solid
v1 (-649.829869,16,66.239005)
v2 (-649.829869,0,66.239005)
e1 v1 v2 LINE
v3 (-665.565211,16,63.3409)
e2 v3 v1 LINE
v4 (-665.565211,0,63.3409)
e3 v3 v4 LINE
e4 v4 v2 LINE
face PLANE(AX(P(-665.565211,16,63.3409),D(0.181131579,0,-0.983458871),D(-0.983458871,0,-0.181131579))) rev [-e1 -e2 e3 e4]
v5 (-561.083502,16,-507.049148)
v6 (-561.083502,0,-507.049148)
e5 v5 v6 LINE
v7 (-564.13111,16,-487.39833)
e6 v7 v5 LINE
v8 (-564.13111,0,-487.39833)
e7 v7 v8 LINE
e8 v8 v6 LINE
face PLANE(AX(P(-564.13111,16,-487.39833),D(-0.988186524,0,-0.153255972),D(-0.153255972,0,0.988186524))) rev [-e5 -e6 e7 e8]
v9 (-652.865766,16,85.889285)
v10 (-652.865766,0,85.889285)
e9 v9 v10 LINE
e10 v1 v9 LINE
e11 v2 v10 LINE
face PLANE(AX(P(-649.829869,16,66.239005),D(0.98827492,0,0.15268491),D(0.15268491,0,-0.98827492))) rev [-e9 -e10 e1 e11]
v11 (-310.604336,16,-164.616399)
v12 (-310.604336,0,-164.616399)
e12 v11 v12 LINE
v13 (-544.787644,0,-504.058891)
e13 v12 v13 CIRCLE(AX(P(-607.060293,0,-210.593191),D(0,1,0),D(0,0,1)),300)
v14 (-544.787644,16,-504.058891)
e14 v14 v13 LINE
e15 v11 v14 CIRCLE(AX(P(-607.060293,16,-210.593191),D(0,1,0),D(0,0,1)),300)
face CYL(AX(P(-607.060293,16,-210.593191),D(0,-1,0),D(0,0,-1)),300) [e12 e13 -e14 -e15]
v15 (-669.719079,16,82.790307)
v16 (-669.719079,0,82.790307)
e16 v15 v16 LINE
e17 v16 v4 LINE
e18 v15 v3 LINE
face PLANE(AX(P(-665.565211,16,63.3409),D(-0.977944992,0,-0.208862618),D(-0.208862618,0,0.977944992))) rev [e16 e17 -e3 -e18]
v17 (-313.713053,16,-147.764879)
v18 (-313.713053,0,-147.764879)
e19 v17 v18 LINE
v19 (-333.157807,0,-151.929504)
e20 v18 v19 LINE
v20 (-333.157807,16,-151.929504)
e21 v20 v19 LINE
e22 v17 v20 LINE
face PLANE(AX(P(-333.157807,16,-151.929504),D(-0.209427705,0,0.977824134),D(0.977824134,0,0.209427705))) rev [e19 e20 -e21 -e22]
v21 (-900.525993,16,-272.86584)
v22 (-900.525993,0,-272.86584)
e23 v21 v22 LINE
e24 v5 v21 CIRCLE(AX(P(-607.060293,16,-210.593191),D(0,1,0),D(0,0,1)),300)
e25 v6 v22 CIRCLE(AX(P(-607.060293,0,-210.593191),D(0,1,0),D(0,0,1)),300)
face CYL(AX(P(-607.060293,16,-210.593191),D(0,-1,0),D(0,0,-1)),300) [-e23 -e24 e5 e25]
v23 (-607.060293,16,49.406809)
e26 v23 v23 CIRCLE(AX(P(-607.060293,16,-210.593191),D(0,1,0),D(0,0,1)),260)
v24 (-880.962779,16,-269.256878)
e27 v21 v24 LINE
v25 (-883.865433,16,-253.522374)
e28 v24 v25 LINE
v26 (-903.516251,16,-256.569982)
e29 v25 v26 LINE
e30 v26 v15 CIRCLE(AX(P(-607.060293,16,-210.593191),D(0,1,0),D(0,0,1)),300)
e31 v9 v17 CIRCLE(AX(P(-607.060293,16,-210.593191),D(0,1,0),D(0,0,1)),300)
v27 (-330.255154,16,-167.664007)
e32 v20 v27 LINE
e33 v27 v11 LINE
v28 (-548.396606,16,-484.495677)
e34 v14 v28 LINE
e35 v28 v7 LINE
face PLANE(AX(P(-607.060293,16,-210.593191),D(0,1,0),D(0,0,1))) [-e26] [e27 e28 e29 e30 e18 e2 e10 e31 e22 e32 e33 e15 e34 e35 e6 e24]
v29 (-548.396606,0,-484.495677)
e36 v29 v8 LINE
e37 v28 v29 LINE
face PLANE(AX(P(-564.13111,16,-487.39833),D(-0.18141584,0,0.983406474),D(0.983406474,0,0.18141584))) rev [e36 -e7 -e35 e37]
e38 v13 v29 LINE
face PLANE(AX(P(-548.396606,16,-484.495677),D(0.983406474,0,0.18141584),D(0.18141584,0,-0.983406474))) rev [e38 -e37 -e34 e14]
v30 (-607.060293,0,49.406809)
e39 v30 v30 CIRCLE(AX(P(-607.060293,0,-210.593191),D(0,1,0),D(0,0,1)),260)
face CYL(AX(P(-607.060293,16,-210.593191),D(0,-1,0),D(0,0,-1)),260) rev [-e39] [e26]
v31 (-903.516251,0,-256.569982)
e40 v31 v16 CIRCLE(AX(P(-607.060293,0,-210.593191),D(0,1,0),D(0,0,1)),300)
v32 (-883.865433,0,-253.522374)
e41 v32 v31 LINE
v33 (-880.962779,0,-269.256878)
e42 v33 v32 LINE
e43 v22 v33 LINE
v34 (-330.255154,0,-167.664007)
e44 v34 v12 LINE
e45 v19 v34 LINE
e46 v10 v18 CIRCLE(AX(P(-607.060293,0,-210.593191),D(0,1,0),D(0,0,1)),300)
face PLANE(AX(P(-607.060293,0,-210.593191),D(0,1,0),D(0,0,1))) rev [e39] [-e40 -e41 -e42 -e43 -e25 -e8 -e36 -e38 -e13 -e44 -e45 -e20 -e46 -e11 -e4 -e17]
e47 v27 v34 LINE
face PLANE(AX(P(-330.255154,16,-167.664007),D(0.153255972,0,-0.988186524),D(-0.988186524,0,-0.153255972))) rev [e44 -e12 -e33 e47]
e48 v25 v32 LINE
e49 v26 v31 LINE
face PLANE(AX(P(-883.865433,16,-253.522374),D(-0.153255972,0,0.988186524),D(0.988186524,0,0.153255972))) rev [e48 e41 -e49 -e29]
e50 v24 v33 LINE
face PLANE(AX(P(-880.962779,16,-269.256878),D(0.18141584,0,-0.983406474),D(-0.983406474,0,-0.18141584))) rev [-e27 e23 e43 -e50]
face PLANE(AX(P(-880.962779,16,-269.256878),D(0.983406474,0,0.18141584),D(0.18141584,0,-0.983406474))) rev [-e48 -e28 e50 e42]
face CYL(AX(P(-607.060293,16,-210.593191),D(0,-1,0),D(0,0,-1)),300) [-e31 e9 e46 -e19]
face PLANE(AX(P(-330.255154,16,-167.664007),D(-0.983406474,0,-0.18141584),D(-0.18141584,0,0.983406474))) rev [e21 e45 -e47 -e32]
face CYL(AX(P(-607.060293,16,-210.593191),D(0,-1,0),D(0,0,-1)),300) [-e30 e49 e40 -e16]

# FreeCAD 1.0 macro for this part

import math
import FreeCAD as App
import Part
import Sketcher

V = App.Vector

doc = App.newDocument("Part")
body = doc.addObject("PartDesign::Body", "Body")

sketch1 = doc.addObject("Sketcher::SketchObject", "Sketch")
body.addObject(sketch1)
sketch1.AttachmentSupport = (doc.XZ_Plane, [""])
sketch1.MapMode = "FlatFace"
sketch1.addGeometry([
    Part.LineSegment(V(-548, -484, 0), V(-564, -487, 0)),
    Part.LineSegment(V(-564, -487, 0), V(-561, -507, 0)),
    Part.ArcOfCircle(Part.Circle(V(-607, -211, 0), V(0, 0, 1), 300), math.radians(-168), math.radians(-81)),
    Part.LineSegment(V(-901, -273, 0), V(-881, -269, 0)),
    Part.LineSegment(V(-881, -269, 0), V(-884, -254, 0)),
    Part.LineSegment(V(-884, -254, 0), V(-904, -257, 0)),
    Part.ArcOfCircle(Part.Circle(V(-607, -211, 0), V(0, 0, 1), 300), math.radians(102), math.radians(189)),
    Part.LineSegment(V(-670, 83, 0), V(-666, 63, 0)),
    Part.LineSegment(V(-666, 63, 0), V(-650, 66, 0)),
    Part.LineSegment(V(-650, 66, 0), V(-653, 86, 0)),
    Part.ArcOfCircle(Part.Circle(V(-607, -211, 0), V(0, 0, 1), 300), math.radians(12), math.radians(99)),
    Part.LineSegment(V(-314, -148, 0), V(-333, -152, 0)),
    Part.LineSegment(V(-333, -152, 0), V(-330, -168, 0)),
    Part.LineSegment(V(-330, -168, 0), V(-311, -165, 0)),
    Part.ArcOfCircle(Part.Circle(V(-607, -211, 0), V(0, 0, 1), 300), math.radians(-78), math.radians(9)),
    Part.LineSegment(V(-545, -504, 0), V(-548, -484, 0)),
    Part.Circle(V(-607, -211, 0), V(0, 0, 1), 260),
], False)
sketch1.addConstraint([
    Sketcher.Constraint("Coincident", 0, 2, 1, 1),
    Sketcher.Constraint("Coincident", 1, 2, 2, 2),
    Sketcher.Constraint("Coincident", 2, 1, 3, 1),
    Sketcher.Constraint("Coincident", 3, 2, 4, 1),
    Sketcher.Constraint("Coincident", 4, 2, 5, 1),
    Sketcher.Constraint("Coincident", 5, 2, 6, 2),
    Sketcher.Constraint("Coincident", 6, 1, 7, 1),
    Sketcher.Constraint("Coincident", 7, 2, 8, 1),
    Sketcher.Constraint("Coincident", 8, 2, 9, 1),
    Sketcher.Constraint("Coincident", 9, 2, 10, 2),
    Sketcher.Constraint("Coincident", 10, 1, 11, 1),
    Sketcher.Constraint("Coincident", 11, 2, 12, 1),
    Sketcher.Constraint("Coincident", 12, 2, 13, 1),
    Sketcher.Constraint("Coincident", 13, 2, 14, 2),
    Sketcher.Constraint("Coincident", 14, 1, 15, 1),
    Sketcher.Constraint("Coincident", 15, 2, 0, 1),
    Sketcher.Constraint("Coincident", 6, 3, 2, 3),
    Sketcher.Constraint("Coincident", 10, 3, 2, 3),
    Sketcher.Constraint("Coincident", 14, 3, 2, 3),
    Sketcher.Constraint("Coincident", 16, 3, 2, 3),
    Sketcher.Constraint("Equal", 2, 6),
    Sketcher.Constraint("Equal", 6, 10),
    Sketcher.Constraint("Equal", 10, 14),
    Sketcher.Constraint("Parallel", 0, 3),
    Sketcher.Constraint("Perpendicular", 3, 4),
    Sketcher.Constraint("Perpendicular", 1, 5),
    Sketcher.Constraint("Parallel", 4, 12),
    Sketcher.Constraint("Parallel", 5, 13),
    Sketcher.Constraint("Parallel", 12, 15),
    Sketcher.Constraint("Equal", 0, 4),
    Sketcher.Constraint("Equal", 1, 5),
    Sketcher.Constraint("Equal", 4, 8),
    Sketcher.Constraint("Equal", 5, 11),
    Sketcher.Constraint("Equal", 8, 12),
    Sketcher.Constraint("Equal", 11, 13),
    Sketcher.Constraint("Equal", 3, 15),
    Sketcher.Constraint("Diameter", 16, 520.0),
    Sketcher.Constraint("Radius", 2, 300.0),
    Sketcher.Constraint("Distance", 0, 16.0),
    Sketcher.Constraint("DistanceX", 1, 2, -1, 1, 561.083502),
    Sketcher.Constraint("DistanceY", -1, 1, 7, 2, 63.3409),
    Sketcher.Constraint("DistanceY", 13, 2, -1, 1, 164.616399),
    Sketcher.Constraint("DistanceY", 8, 2, 6, 1, 16.551301),
    Sketcher.Constraint("DistanceX", 12, 2, 10, 1, 16.542101),
    Sketcher.Constraint("DistanceY", 2, 3, -1, 1, 210.593191),
    Sketcher.Constraint("DistanceX", 0, 2, -1, 1, 564.13111),
    Sketcher.Constraint("DistanceY", 0, 2, -1, 1, 487.39833),
    Sketcher.Constraint("DistanceY", 1, 2, -1, 1, 507.049148),
    Sketcher.Constraint("DistanceX", 6, 1, -1, 1, 669.719079),
    Sketcher.Constraint("DistanceX", 7, 2, -1, 1, 665.565211),
    Sketcher.Constraint("DistanceY", 6, 1, 9, 2, 3.098979),
])
pad1 = doc.addObject("PartDesign::Pad", "Pad")
body.addObject(pad1)
pad1.Profile = sketch1
pad1.Length = 16
pad1.Reversed = True

doc.recompute()
